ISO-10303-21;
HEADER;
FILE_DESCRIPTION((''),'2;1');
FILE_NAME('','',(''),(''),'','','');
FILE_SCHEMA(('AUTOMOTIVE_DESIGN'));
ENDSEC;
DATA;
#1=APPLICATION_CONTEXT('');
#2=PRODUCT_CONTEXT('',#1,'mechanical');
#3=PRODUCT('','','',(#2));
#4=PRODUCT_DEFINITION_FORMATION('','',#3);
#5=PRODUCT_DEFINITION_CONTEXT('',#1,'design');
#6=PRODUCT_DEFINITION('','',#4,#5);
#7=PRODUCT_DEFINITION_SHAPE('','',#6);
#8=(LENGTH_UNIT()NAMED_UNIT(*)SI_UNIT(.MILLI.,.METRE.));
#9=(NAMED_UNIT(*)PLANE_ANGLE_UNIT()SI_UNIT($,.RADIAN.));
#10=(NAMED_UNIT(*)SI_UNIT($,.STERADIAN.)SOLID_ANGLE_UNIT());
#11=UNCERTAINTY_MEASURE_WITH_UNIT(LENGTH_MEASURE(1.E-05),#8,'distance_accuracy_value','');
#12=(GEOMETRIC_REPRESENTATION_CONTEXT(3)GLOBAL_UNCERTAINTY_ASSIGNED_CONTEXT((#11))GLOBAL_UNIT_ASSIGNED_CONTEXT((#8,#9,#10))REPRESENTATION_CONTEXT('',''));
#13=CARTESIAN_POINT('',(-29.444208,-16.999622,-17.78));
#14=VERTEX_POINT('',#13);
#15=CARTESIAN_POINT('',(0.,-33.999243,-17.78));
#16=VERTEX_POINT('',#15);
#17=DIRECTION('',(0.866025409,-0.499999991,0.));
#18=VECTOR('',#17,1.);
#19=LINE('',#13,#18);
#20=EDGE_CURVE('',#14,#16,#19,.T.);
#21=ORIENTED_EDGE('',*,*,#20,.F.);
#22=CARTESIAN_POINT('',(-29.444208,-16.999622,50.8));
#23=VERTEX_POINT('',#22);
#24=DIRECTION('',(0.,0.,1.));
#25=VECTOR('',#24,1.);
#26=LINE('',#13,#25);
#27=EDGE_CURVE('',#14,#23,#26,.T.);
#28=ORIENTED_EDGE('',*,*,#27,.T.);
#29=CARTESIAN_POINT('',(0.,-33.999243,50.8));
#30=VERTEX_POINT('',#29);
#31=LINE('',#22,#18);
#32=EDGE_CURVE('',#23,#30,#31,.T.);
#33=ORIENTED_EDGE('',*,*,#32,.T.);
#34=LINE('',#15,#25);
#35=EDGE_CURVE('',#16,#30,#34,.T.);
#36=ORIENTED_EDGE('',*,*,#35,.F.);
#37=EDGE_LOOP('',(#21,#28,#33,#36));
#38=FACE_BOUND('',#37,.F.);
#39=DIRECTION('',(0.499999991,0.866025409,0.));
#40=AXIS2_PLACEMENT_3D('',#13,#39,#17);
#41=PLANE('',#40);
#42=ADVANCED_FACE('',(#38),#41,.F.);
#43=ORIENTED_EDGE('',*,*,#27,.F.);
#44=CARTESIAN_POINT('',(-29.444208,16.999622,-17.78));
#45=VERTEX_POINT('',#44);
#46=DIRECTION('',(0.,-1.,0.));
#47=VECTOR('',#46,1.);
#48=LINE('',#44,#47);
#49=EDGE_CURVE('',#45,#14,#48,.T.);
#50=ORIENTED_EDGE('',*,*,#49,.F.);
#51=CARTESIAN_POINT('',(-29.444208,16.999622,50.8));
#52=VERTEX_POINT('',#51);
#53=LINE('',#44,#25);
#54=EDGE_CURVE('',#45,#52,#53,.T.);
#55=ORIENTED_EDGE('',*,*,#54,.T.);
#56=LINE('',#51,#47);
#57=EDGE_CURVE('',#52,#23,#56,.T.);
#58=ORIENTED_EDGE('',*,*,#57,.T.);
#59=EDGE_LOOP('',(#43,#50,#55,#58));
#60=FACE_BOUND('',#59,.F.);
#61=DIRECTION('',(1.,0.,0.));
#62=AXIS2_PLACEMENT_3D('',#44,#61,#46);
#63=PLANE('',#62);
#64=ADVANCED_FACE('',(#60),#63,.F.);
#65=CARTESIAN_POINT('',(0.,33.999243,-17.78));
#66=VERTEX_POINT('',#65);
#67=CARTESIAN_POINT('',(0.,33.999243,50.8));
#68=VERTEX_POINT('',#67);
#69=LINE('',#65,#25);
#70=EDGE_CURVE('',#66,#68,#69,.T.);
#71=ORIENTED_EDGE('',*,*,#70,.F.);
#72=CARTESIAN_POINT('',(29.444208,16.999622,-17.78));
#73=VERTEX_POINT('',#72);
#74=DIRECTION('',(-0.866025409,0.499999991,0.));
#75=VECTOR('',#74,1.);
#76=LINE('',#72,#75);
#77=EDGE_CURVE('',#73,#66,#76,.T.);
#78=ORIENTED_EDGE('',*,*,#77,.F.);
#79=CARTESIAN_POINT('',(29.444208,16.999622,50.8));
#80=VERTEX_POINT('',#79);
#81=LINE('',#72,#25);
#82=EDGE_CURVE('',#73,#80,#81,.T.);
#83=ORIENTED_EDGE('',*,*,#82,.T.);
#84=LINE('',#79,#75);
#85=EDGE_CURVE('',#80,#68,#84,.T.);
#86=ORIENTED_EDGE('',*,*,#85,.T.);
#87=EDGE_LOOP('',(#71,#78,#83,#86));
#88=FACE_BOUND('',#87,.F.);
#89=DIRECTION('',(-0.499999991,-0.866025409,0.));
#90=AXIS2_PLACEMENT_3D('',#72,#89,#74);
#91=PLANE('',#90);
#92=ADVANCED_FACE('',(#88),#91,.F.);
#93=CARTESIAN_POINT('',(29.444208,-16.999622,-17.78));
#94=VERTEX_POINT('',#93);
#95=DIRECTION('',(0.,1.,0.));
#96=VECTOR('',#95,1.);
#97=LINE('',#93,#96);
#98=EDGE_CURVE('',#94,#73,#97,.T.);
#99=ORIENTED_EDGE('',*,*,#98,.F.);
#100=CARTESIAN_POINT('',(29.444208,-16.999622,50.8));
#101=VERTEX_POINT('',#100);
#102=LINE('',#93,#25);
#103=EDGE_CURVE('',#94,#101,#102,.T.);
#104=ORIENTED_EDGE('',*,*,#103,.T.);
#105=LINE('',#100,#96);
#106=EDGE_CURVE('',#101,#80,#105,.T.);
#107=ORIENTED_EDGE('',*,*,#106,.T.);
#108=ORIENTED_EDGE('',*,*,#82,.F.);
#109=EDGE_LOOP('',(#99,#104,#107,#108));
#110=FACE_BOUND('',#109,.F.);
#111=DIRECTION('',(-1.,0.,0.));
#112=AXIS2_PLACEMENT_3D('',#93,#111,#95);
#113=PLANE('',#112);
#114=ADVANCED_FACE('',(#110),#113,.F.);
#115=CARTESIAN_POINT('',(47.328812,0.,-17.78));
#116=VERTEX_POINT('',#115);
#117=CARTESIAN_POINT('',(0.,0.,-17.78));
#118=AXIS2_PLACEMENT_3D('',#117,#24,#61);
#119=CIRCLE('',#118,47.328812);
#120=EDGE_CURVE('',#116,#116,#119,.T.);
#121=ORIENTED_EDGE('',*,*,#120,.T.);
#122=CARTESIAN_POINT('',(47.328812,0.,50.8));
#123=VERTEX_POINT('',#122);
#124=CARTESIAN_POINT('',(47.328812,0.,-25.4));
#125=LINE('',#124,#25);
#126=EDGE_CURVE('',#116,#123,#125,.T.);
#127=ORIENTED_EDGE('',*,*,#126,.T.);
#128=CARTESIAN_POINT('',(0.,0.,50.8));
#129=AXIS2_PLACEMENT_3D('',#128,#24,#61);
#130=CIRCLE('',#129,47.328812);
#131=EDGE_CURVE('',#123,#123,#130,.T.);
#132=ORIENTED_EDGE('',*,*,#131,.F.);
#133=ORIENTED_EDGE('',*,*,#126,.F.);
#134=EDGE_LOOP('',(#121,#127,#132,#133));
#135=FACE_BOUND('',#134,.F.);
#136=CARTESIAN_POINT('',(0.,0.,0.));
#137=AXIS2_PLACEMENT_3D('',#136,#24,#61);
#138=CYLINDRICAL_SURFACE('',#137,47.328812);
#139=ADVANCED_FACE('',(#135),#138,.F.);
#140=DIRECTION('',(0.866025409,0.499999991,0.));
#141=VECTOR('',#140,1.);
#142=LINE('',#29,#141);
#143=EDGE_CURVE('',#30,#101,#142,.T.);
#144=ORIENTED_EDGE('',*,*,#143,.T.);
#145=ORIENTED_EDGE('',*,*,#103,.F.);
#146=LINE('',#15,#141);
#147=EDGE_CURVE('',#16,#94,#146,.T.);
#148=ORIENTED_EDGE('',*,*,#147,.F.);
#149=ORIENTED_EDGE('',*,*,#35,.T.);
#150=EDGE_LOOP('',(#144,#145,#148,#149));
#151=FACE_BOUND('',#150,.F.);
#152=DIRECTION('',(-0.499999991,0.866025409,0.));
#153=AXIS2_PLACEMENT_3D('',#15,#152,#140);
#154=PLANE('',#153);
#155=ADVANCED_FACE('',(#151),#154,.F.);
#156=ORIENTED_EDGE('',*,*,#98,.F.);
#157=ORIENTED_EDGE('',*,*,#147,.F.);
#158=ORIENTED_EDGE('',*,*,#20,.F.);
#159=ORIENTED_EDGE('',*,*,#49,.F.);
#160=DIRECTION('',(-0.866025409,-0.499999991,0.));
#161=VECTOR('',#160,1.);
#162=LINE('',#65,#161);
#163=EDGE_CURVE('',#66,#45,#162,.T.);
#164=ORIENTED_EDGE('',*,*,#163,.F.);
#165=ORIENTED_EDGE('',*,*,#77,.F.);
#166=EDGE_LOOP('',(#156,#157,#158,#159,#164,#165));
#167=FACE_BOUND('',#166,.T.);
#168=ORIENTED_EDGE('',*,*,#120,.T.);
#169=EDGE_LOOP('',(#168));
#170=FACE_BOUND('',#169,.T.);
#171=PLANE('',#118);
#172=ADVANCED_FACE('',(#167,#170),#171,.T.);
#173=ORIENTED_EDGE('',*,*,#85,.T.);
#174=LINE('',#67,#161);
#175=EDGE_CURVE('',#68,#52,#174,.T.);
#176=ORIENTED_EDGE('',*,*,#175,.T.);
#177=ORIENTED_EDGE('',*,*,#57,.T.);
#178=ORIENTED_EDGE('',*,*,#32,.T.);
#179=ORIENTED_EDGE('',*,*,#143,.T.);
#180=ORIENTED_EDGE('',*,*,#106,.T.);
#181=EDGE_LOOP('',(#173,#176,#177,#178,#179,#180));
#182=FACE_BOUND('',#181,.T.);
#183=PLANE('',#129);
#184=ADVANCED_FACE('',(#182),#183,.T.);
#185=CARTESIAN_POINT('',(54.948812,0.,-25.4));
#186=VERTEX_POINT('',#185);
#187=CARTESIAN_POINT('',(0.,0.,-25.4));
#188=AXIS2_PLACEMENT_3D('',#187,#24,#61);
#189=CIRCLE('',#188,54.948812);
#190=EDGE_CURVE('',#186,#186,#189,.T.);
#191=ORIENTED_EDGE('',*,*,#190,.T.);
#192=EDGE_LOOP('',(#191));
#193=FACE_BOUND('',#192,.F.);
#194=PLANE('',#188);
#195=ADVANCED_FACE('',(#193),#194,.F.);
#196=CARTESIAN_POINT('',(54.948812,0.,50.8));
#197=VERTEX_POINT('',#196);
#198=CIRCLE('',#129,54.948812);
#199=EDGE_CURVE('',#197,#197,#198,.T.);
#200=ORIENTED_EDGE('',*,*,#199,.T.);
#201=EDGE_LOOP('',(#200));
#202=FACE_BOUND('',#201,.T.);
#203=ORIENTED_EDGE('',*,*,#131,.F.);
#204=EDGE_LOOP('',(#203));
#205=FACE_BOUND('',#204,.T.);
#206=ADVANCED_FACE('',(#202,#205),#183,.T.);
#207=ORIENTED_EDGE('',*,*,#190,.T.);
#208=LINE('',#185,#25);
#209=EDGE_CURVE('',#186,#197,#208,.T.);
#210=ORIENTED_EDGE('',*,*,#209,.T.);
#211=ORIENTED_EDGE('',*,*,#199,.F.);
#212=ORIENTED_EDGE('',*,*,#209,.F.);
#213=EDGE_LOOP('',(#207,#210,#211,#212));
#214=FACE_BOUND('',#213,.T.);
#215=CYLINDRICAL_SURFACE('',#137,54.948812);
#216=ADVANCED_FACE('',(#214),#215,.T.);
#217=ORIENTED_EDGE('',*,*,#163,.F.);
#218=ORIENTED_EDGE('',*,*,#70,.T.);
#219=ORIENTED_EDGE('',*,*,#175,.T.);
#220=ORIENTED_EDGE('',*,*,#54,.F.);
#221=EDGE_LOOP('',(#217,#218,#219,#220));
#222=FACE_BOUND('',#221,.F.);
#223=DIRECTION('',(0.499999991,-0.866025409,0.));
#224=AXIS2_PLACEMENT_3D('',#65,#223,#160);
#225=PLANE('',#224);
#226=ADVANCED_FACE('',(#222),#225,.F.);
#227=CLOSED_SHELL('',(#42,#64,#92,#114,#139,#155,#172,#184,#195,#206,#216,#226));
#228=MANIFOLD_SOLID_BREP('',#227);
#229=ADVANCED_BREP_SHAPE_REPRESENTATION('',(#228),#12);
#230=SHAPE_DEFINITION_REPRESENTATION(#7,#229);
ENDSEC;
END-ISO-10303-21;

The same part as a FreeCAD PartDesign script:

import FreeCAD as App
import Part
import Sketcher
Q = App.Units.Quantity


def faces_at(feature, points):
    """Names of the faces that lie closest to the given points."""
    faces = feature.Shape.Faces
    near = lambda p: min(range(len(faces)), key=lambda i: faces[i].distToShape(Part.Vertex(*p))[0])
    return sorted({f"Face{near(p) + 1}" for p in points})

doc = App.newDocument("Part")
body = doc.addObject("PartDesign::Body", "Body")

# Sketch on XY plane
sketch1 = body.newObject("Sketcher::SketchObject", "Sketch")
sketch1.AttachmentSupport = (doc.getObject("XY_Plane"), [""])
sketch1.MapMode = "FlatFace"
sketch1.addGeometry(Part.Circle(App.Vector(0, 0, 0), App.Vector(0, 0, 1), 55), False)
sketch1.addConstraint(Sketcher.Constraint("Coincident", 0, 3, -1, 1))
sketch1.addConstraint(Sketcher.Constraint("Diameter", 0, 109.897624))
pad1 = body.newObject("PartDesign::Pad", "Pad")
pad1.Profile = sketch1
pad1.Type = "TwoLengths"
pad1.Length = Q("2 in")
pad1.Length2 = Q("1 in")
doc.recompute()

thickness = body.newObject("PartDesign::Thickness", "Thickness")
thickness.Base = (pad1, faces_at(pad1, [(0, 0, 50.8)]))
thickness.Value = Q("0.3 in")
thickness.Reversed = True
thickness.Join = "Arc"

# Sketch on XY plane
sketch2 = body.newObject("Sketcher::SketchObject", "Sketch001")
sketch2.AttachmentSupport = (doc.getObject("XY_Plane"), [""])
sketch2.MapMode = "FlatFace"
sketch2.AttachmentOffset = App.Placement(App.Vector(0, 0, -0.7 * 25.4), App.Rotation())
sketch2.addGeometry(Part.LineSegment(App.Vector(29, -17, 0), App.Vector(29, 17, 0)), False)
sketch2.addGeometry(Part.LineSegment(App.Vector(29, 17, 0), App.Vector(0, 34, 0)), False)
sketch2.addGeometry(Part.LineSegment(App.Vector(0, 34, 0), App.Vector(-29, 17, 0)), False)
sketch2.addGeometry(Part.LineSegment(App.Vector(-29, 17, 0), App.Vector(-29, -17, 0)), False)
sketch2.addGeometry(Part.LineSegment(App.Vector(-29, -17, 0), App.Vector(0, -34, 0)), False)
sketch2.addGeometry(Part.LineSegment(App.Vector(0, -34, 0), App.Vector(29, -17, 0)), False)
sketch2.addConstraint(Sketcher.Constraint("Coincident", 0, 2, 1, 1))
sketch2.addConstraint(Sketcher.Constraint("Coincident", 1, 2, 2, 1))
sketch2.addConstraint(Sketcher.Constraint("Coincident", 2, 2, 3, 1))
sketch2.addConstraint(Sketcher.Constraint("Coincident", 3, 2, 4, 1))
sketch2.addConstraint(Sketcher.Constraint("Coincident", 4, 2, 5, 1))
sketch2.addConstraint(Sketcher.Constraint("Coincident", 5, 2, 0, 1))
sketch2.addConstraint(Sketcher.Constraint("Vertical", 0))
sketch2.addConstraint(Sketcher.Constraint("Vertical", 3))
sketch2.addConstraint(Sketcher.Constraint("Symmetric", 0, 2, 3, 2, -1, 1))
sketch2.addConstraint(Sketcher.Constraint("Symmetric", 1, 2, 4, 2, -1, 1))
sketch2.addConstraint(Sketcher.Constraint("PointOnObject", 1, 2, -2))
sketch2.addConstraint(Sketcher.Constraint("Parallel", 2, 5))
sketch2.addConstraint(Sketcher.Constraint("Horizontal", 0, 2, 2, 2))
sketch2.addConstraint(Sketcher.Constraint("Angle", 1, Q("150.000001 deg")))
sketch2.addConstraint(Sketcher.Constraint("DistanceY", 0, 1, 0, 2, 33.999244))
sketch2.addConstraint(Sketcher.Constraint("DistanceY", 0, 2, 1, 2, 16.999621))
pad2 = body.newObject("PartDesign::Pad", "Pad001")
pad2.Profile = sketch2
pad2.Length = Q("2.7 in")

doc.recompute()
